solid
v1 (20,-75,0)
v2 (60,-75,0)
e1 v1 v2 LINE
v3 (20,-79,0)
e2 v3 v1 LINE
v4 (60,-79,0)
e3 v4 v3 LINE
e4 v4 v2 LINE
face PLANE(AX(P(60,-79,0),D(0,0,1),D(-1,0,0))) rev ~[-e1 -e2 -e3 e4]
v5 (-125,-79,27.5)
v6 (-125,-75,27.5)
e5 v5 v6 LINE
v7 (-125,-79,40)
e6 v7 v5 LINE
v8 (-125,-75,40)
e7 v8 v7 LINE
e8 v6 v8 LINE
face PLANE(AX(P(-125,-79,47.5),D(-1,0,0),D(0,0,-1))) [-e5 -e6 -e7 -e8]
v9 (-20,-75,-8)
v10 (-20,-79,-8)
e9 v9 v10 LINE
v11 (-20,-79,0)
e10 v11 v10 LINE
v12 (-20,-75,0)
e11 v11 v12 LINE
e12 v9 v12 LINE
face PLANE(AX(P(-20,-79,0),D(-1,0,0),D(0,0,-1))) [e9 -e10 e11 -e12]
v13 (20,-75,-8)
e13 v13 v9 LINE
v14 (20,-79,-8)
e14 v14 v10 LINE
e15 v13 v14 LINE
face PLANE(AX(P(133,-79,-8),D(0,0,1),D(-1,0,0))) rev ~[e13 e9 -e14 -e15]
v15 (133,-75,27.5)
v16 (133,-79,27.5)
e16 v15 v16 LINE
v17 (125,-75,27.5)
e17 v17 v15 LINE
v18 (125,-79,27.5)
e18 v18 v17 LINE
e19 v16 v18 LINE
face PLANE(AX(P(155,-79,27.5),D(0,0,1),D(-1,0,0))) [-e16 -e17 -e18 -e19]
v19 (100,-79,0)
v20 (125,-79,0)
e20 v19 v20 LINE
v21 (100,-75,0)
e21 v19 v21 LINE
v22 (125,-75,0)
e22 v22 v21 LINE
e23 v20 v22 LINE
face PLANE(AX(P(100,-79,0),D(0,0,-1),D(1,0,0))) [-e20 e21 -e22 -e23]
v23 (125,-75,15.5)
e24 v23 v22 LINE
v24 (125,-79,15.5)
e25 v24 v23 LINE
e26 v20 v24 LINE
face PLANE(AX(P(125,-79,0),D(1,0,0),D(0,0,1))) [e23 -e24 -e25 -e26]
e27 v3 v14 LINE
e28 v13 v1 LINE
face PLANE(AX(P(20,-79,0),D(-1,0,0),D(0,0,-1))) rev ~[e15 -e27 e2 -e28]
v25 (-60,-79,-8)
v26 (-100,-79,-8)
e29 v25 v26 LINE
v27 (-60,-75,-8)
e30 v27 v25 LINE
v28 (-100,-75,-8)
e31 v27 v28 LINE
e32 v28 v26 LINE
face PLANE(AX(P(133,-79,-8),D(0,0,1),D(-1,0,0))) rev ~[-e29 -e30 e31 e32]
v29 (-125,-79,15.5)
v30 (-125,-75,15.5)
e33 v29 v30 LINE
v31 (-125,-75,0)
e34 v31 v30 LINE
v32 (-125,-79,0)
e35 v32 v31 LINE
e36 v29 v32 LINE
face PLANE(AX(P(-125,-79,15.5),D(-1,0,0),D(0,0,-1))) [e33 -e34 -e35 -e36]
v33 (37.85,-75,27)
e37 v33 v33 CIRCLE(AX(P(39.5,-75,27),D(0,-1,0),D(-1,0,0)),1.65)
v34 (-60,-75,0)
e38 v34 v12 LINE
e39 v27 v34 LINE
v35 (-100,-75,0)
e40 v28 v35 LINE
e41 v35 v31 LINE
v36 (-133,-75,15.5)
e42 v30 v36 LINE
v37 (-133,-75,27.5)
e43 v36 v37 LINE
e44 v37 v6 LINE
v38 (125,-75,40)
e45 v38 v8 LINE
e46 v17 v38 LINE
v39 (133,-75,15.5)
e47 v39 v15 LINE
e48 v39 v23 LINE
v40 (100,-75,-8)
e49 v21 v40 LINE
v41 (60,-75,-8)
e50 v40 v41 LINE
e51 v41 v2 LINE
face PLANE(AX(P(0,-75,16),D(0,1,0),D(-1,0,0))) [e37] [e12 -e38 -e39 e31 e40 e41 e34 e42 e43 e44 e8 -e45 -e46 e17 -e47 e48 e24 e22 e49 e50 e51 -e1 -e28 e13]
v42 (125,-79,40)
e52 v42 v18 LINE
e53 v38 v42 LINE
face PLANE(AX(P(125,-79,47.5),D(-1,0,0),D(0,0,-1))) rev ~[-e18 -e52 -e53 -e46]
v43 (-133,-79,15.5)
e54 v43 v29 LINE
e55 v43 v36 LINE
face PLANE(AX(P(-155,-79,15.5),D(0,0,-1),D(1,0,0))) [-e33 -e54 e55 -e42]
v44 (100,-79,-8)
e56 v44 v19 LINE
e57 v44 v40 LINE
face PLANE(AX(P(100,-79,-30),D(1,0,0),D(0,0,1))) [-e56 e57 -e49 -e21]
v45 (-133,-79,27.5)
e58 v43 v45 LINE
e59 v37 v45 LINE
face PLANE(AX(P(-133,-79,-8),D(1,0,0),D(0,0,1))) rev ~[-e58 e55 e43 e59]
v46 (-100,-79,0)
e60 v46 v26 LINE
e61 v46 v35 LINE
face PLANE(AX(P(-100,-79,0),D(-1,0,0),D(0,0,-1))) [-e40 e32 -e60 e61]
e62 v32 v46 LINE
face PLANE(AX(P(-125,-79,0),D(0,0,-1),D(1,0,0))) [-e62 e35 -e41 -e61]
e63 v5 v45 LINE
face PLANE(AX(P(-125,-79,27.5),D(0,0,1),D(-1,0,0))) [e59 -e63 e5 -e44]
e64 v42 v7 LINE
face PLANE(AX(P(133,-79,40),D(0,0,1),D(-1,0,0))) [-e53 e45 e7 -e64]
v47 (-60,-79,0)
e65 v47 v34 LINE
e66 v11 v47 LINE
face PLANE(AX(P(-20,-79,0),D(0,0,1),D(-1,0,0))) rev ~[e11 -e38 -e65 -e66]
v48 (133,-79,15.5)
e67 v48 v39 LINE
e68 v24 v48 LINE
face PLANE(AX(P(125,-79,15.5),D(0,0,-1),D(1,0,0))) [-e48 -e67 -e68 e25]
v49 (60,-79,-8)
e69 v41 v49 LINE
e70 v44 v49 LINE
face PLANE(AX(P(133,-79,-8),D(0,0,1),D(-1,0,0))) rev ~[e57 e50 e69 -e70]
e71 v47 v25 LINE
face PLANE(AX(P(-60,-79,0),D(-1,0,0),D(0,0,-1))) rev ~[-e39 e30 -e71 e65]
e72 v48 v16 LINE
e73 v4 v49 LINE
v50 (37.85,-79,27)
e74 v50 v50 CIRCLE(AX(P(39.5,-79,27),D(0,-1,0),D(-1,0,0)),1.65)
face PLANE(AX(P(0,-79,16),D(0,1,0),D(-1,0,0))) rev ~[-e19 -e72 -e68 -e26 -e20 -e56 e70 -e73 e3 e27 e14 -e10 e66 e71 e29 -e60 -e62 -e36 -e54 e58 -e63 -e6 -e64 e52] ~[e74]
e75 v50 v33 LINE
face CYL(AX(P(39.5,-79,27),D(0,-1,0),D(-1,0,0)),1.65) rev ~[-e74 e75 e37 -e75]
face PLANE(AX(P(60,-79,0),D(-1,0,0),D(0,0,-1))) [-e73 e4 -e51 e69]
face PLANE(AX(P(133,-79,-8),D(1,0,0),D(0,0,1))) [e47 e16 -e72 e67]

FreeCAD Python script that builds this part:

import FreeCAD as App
import Part
import Sketcher
from FreeCAD import Vector
Q = App.Units.Quantity

doc = App.newDocument("Part")
body = doc.addObject("PartDesign::Body", "Body")

# Sketch on XZ plane
sketch1 = doc.addObject("Sketcher::SketchObject", "Sketch")
body.addObject(sketch1)
sketch1.AttachmentSupport = (doc.XZ_Plane, [""])
sketch1.MapMode = "FlatFace"
sketch1.AttachmentOffset = App.Placement(Vector(0, 0, 79), App.Rotation())
sketch1.addGeometry([
    Part.LineSegment(Vector(133, 40, 0), Vector(133, -8, 0)),
    Part.LineSegment(Vector(133, -8, 0), Vector(-133, -8, 0)),
    Part.LineSegment(Vector(-133, -8, 0), Vector(-133, 40, 0)),
    Part.LineSegment(Vector(-133, 40, 0), Vector(133, 40, 0)),
], False)
sketch1.addConstraint([
    Sketcher.Constraint("Coincident", 0, 2, 1, 1),
    Sketcher.Constraint("Coincident", 1, 2, 2, 1),
    Sketcher.Constraint("Coincident", 2, 2, 3, 1),
    Sketcher.Constraint("Coincident", 3, 2, 0, 1),
    Sketcher.Constraint("Vertical", 0),
    Sketcher.Constraint("Horizontal", 1),
    Sketcher.Constraint("Vertical", 2),
    Sketcher.Constraint("Horizontal", 3),
    Sketcher.Constraint("DistanceX", 1, 2, 1, 1, Q("266 mm")),
    Sketcher.Constraint("DistanceY", 0, 2, 0, 1, Q("48 mm")),
    Sketcher.Constraint("DistanceX", -1, 1, 0, 2, Q("133 mm")),
    Sketcher.Constraint("DistanceY", 0, 2, -1, 1, Q("8 mm")),
])
pad1 = doc.addObject("PartDesign::Pad", "Pad")
body.addObject(pad1)
pad1.Profile = sketch1
pad1.Length = 4
pad1.Reversed = True

# Sketch on XZ plane
sketch2 = doc.addObject("Sketcher::SketchObject", "Sketch001")
body.addObject(sketch2)
sketch2.AttachmentSupport = (doc.XZ_Plane, [""])
sketch2.MapMode = "FlatFace"
sketch2.AttachmentOffset = App.Placement(Vector(0, 0, 79), App.Rotation())
sketch2.addGeometry([
    Part.LineSegment(Vector(100, -30, 0), Vector(145, -30, 0)),  # 0
    Part.LineSegment(Vector(145, -30, 0), Vector(145, -4, 0)),  # 1
    Part.LineSegment(Vector(145, -4, 0), Vector(155, -4, 0)),  # 2
    Part.LineSegment(Vector(155, -4, 0), Vector(155, 16, 0)),  # 3
    Part.LineSegment(Vector(155, 16, 0), Vector(125, 16, 0)),  # 4
    Part.LineSegment(Vector(125, 16, 0), Vector(125, 0, 0)),  # 5
    Part.LineSegment(Vector(125, 0, 0), Vector(100, 0, 0)),  # 6
    Part.LineSegment(Vector(100, 0, 0), Vector(100, -30, 0)),  # 7
    Part.LineSegment(Vector(60, -30, 0), Vector(60, 0, 0)),  # 8
    Part.LineSegment(Vector(60, 0, 0), Vector(20, 0, 0)),  # 9
    Part.LineSegment(Vector(20, 0, 0), Vector(20, -30, 0)),  # 10
    Part.LineSegment(Vector(20, -30, 0), Vector(60, -30, 0)),  # 11
    Part.LineSegment(Vector(-20, -30, 0), Vector(-20, 0, 0)),  # 12
    Part.LineSegment(Vector(-20, 0, 0), Vector(-60, 0, 0)),  # 13
    Part.LineSegment(Vector(-60, 0, 0), Vector(-60, -30, 0)),  # 14
    Part.LineSegment(Vector(-60, -30, 0), Vector(-20, -30, 0)),  # 15
    Part.LineSegment(Vector(-145, -30, 0), Vector(-100, -30, 0)),  # 16
    Part.LineSegment(Vector(-100, -30, 0), Vector(-100, 0, 0)),  # 17
    Part.LineSegment(Vector(-100, 0, 0), Vector(-125, 0, 0)),  # 18
    Part.LineSegment(Vector(-125, 0, 0), Vector(-125, 16, 0)),  # 19
    Part.LineSegment(Vector(-125, 16, 0), Vector(-155, 16, 0)),  # 20
    Part.LineSegment(Vector(-155, 16, 0), Vector(-155, -4, 0)),  # 21
    Part.LineSegment(Vector(-155, -4, 0), Vector(-145, -4, 0)),  # 22
    Part.LineSegment(Vector(-145, -4, 0), Vector(-145, -30, 0)),  # 23
    Part.LineSegment(Vector(155, 28, 0), Vector(155, 48, 0)),  # 24
    Part.LineSegment(Vector(155, 48, 0), Vector(125, 48, 0)),  # 25
    Part.LineSegment(Vector(125, 48, 0), Vector(125, 28, 0)),  # 26
    Part.LineSegment(Vector(125, 28, 0), Vector(155, 28, 0)),  # 27
    Part.LineSegment(Vector(-125, 28, 0), Vector(-125, 48, 0)),  # 28
    Part.LineSegment(Vector(-125, 48, 0), Vector(-155, 48, 0)),  # 29
    Part.LineSegment(Vector(-155, 48, 0), Vector(-155, 28, 0)),  # 30
    Part.LineSegment(Vector(-155, 28, 0), Vector(-125, 28, 0)),  # 31
], False)
sketch2.addConstraint([
    Sketcher.Constraint("Coincident", 0, 2, 1, 1),
    Sketcher.Constraint("Coincident", 1, 2, 2, 1),
    Sketcher.Constraint("Coincident", 2, 2, 3, 1),
    Sketcher.Constraint("Coincident", 3, 2, 4, 1),
    Sketcher.Constraint("Coincident", 4, 2, 5, 1),
    Sketcher.Constraint("Coincident", 5, 2, 6, 1),
    Sketcher.Constraint("Coincident", 6, 2, 7, 1),
    Sketcher.Constraint("Coincident", 7, 2, 0, 1),
    Sketcher.Constraint("Coincident", 8, 2, 9, 1),
    Sketcher.Constraint("Coincident", 9, 2, 10, 1),
    Sketcher.Constraint("Coincident", 10, 2, 11, 1),
    Sketcher.Constraint("Coincident", 11, 2, 8, 1),
    Sketcher.Constraint("Coincident", 12, 2, 13, 1),
    Sketcher.Constraint("Coincident", 13, 2, 14, 1),
    Sketcher.Constraint("Coincident", 14, 2, 15, 1),
    Sketcher.Constraint("Coincident", 15, 2, 12, 1),
    Sketcher.Constraint("Coincident", 16, 2, 17, 1),
    Sketcher.Constraint("Coincident", 17, 2, 18, 1),
    Sketcher.Constraint("Coincident", 18, 2, 19, 1),
    Sketcher.Constraint("Coincident", 19, 2, 20, 1),
    Sketcher.Constraint("Coincident", 20, 2, 21, 1),
    Sketcher.Constraint("Coincident", 21, 2, 22, 1),
    Sketcher.Constraint("Coincident", 22, 2, 23, 1),
    Sketcher.Constraint("Coincident", 23, 2, 16, 1),
    Sketcher.Constraint("Coincident", 24, 2, 25, 1),
    Sketcher.Constraint("Coincident", 25, 2, 26, 1),
    Sketcher.Constraint("Coincident", 26, 2, 27, 1),
    Sketcher.Constraint("Coincident", 27, 2, 24, 1),
    Sketcher.Constraint("Coincident", 28, 2, 29, 1),
    Sketcher.Constraint("Coincident", 29, 2, 30, 1),
    Sketcher.Constraint("Coincident", 30, 2, 31, 1),
    Sketcher.Constraint("Coincident", 31, 2, 28, 1),
    Sketcher.Constraint("Horizontal", 0),
    Sketcher.Constraint("Vertical", 1),
    Sketcher.Constraint("Horizontal", 2),
    Sketcher.Constraint("Vertical", 3),
    Sketcher.Constraint("Horizontal", 4),
    Sketcher.Constraint("Vertical", 5),
    Sketcher.Constraint("Horizontal", 6),
    Sketcher.Constraint("Vertical", 7),
    Sketcher.Constraint("Vertical", 8),
    Sketcher.Constraint("Horizontal", 9),
    Sketcher.Constraint("Vertical", 10),
    Sketcher.Constraint("Horizontal", 11),
    Sketcher.Constraint("Vertical", 12),
    Sketcher.Constraint("Horizontal", 13),
    Sketcher.Constraint("Vertical", 14),
    Sketcher.Constraint("Horizontal", 15),
    Sketcher.Constraint("Horizontal", 16),
    Sketcher.Constraint("Vertical", 17),
    Sketcher.Constraint("Horizontal", 18),
    Sketcher.Constraint("Vertical", 19),
    Sketcher.Constraint("Horizontal", 20),
    Sketcher.Constraint("Vertical", 21),
    Sketcher.Constraint("Horizontal", 22),
    Sketcher.Constraint("Vertical", 23),
    Sketcher.Constraint("Vertical", 24),
    Sketcher.Constraint("Horizontal", 25),
    Sketcher.Constraint("Vertical", 26),
    Sketcher.Constraint("Horizontal", 27),
    Sketcher.Constraint("Vertical", 28),
    Sketcher.Constraint("Horizontal", 29),
    Sketcher.Constraint("Vertical", 30),
    Sketcher.Constraint("Horizontal", 31),
    Sketcher.Constraint("Symmetric", 9, 2, 12, 2, -1, 1),
    Sketcher.Constraint("Symmetric", 6, 2, 17, 2, -1, 1),
    Sketcher.Constraint("Symmetric", 8, 2, 13, 2, -2),
    Sketcher.Constraint("Symmetric", 5, 2, 18, 2, -2),
    Sketcher.Constraint("Symmetric", 3, 2, 20, 2, -2),
    Sketcher.Constraint("Symmetric", 1, 2, 22, 2, -2),
    Sketcher.Constraint("Symmetric", 25, 2, 28, 2, -2),
    Sketcher.Constraint("Symmetric", 27, 2, 30, 2, -2),
    Sketcher.Constraint("Horizontal", 7, 2, 10, 2),
    Sketcher.Constraint("Horizontal", 11, 2, 14, 2),
    Sketcher.Constraint("Horizontal", 15, 2, 16, 2),
    Sketcher.Constraint("Vertical", 3, 2, 24, 2),
    Sketcher.Constraint("Vertical", 5, 2, 25, 2),
    Sketcher.Constraint("Equal", 31, 7),
    Sketcher.Constraint("Equal", 21, 24),
    Sketcher.Constraint("DistanceX", 0, 1, 0, 2, Q("45 mm")),
    Sketcher.Constraint("DistanceX", 2, 1, 2, 2, Q("10 mm")),
    Sketcher.Constraint("DistanceX", 4, 2, 4, 1, Q("30 mm")),
    Sketcher.Constraint("DistanceX", 9, 2, 9, 1, Q("40 mm")),
    Sketcher.Constraint("DistanceY", 3, 1, 3, 2, Q("20 mm")),
    Sketcher.Constraint("DistanceY", 1, 1, 1, 2, Q("25.5 mm")),
    Sketcher.Constraint("DistanceX", -1, 1, 0, 2, Q("145 mm")),
    Sketcher.Constraint("DistanceX", -1, 1, 8, 2, Q("60 mm")),
    Sketcher.Constraint("DistanceY", 3, 2, 24, 2, Q("32 mm")),
])
pocket1 = doc.addObject("PartDesign::Pocket", "Pocket")
body.addObject(pocket1)
pocket1.Profile = sketch2
pocket1.Type = "ThroughAll"

# Sketch on XZ plane
sketch3 = doc.addObject("Sketcher::SketchObject", "Sketch002")
body.addObject(sketch3)
sketch3.AttachmentSupport = (doc.XZ_Plane, [""])
sketch3.MapMode = "FlatFace"
sketch3.AttachmentOffset = App.Placement(Vector(0, 0, 79), App.Rotation())
sketch3.addGeometry(Part.Circle(Vector(39.5, 27, 0), Vector(0, 0, 1), 1.6), False)
sketch3.addConstraint([
    Sketcher.Constraint("Diameter", 0, Q("3.3 mm")),
    Sketcher.Constraint("DistanceY", -1, 1, 0, 3, Q("27 mm")),
    Sketcher.Constraint("DistanceX", -1, 1, 0, 3, Q("39.5 mm")),
])
pocket2 = doc.addObject("PartDesign::Pocket", "Pocket001")
body.addObject(pocket2)
pocket2.Profile = sketch3
pocket2.Length = 25

doc.recompute()
